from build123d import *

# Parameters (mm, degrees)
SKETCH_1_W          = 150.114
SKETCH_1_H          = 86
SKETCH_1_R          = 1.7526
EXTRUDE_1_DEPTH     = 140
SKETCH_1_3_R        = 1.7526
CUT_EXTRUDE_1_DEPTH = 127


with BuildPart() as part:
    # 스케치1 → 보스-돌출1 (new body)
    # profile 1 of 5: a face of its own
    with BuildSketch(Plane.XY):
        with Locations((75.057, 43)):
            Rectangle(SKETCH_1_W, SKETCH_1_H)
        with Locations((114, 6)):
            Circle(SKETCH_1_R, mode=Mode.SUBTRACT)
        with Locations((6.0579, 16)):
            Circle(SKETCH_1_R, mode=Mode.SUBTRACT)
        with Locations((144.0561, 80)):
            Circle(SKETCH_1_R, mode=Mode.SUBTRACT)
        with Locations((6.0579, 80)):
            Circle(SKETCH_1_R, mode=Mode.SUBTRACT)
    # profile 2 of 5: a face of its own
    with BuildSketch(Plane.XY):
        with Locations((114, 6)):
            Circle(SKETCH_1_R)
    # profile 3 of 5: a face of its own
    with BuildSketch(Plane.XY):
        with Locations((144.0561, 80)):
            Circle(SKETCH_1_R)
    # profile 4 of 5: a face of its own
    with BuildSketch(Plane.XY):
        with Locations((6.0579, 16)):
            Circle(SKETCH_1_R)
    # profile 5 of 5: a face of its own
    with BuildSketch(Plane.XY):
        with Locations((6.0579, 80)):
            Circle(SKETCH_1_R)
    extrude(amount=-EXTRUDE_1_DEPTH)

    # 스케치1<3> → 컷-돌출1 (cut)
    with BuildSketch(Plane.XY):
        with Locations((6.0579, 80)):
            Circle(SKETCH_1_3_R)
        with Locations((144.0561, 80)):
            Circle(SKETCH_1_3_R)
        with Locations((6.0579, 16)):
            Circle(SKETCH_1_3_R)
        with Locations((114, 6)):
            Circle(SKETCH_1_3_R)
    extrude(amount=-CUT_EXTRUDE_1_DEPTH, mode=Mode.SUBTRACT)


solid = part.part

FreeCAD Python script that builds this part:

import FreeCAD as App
import Part
import Sketcher

V = App.Vector
Q = App.Units.Quantity

doc = App.newDocument("Part")
body = doc.addObject("PartDesign::Body", "Body")

sketch1 = body.newObject("Sketcher::SketchObject", "Sketch")
sketch1.AttachmentSupport = (doc.getObject("XY_Plane"), [""])
sketch1.MapMode = "FlatFace"
sketch1.addGeometry(Part.LineSegment(V(0, 86, 0), V(0, 0, 0)), False)
sketch1.addGeometry(Part.LineSegment(V(0, 0, 0), V(150, 0, 0)), False)
sketch1.addGeometry(Part.LineSegment(V(150, 0, 0), V(150, 86, 0)), False)
sketch1.addGeometry(Part.LineSegment(V(150, 86, 0), V(0, 86, 0)), False)
sketch1.addConstraint(Sketcher.Constraint("Coincident", 0, 2, 1, 1))
sketch1.addConstraint(Sketcher.Constraint("Coincident", 1, 2, 2, 1))
sketch1.addConstraint(Sketcher.Constraint("Coincident", 2, 2, 3, 1))
sketch1.addConstraint(Sketcher.Constraint("Coincident", 3, 2, 0, 1))
sketch1.addConstraint(Sketcher.Constraint("Vertical", 0))
sketch1.addConstraint(Sketcher.Constraint("Horizontal", 1))
sketch1.addConstraint(Sketcher.Constraint("Vertical", 2))
sketch1.addConstraint(Sketcher.Constraint("Horizontal", 3))
sketch1.addConstraint(Sketcher.Constraint("Coincident", 0, 2, -1, 1))
sketch1.addConstraint(Sketcher.Constraint("DistanceX", 1, 1, 1, 2, Q("5.91 in")))
sketch1.addConstraint(Sketcher.Constraint("DistanceY", 0, 2, 0, 1, Q("86 mm")))
pad1 = body.newObject("PartDesign::Pad", "Pad")
pad1.Profile = sketch1
pad1.Length = 140
pad1.Reversed = True

sketch2 = body.newObject("Sketcher::SketchObject", "Sketch001")
sketch2.AttachmentSupport = (doc.getObject("XY_Plane"), [""])
sketch2.MapMode = "FlatFace"
sketch2.addGeometry(Part.Circle(V(6.1, 80, 0), V(0, 0, 1), 1.8), False)
sketch2.addGeometry(Part.Circle(V(144.1, 80, 0), V(0, 0, 1), 1.8), False)
sketch2.addGeometry(Part.Circle(V(6.1, 16, 0), V(0, 0, 1), 1.8), False)
sketch2.addGeometry(Part.Circle(V(114, 6, 0), V(0, 0, 1), 1.8), False)
sketch2.addConstraint(Sketcher.Constraint("Equal", 0, 1))
sketch2.addConstraint(Sketcher.Constraint("Equal", 1, 2))
sketch2.addConstraint(Sketcher.Constraint("Equal", 2, 3))
sketch2.addConstraint(Sketcher.Constraint("Horizontal", 0, 3, 1, 3))
sketch2.addConstraint(Sketcher.Constraint("Vertical", 0, 3, 2, 3))
sketch2.addConstraint(Sketcher.Constraint("Diameter", 0, Q("0.138 in")))
sketch2.addConstraint(Sketcher.Constraint("DistanceX", 0, 3, 1, 3, Q("5.433 in")))
sketch2.addConstraint(Sketcher.Constraint("DistanceX", -1, 1, 0, 3, Q("0.2385 in")))
sketch2.addConstraint(Sketcher.Constraint("DistanceY", -1, 1, 0, 3, Q("80 mm")))
sketch2.addConstraint(Sketcher.Constraint("DistanceY", -1, 1, 2, 3, Q("16 mm")))
sketch2.addConstraint(Sketcher.Constraint("DistanceX", -1, 1, 3, 3, Q("114 mm")))
sketch2.addConstraint(Sketcher.Constraint("DistanceY", -1, 1, 3, 3, Q("6 mm")))
pocket1 = body.newObject("PartDesign::Pocket", "Pocket")
pocket1.Profile = sketch2
pocket1.Length = Q("5 in")

doc.recompute()
